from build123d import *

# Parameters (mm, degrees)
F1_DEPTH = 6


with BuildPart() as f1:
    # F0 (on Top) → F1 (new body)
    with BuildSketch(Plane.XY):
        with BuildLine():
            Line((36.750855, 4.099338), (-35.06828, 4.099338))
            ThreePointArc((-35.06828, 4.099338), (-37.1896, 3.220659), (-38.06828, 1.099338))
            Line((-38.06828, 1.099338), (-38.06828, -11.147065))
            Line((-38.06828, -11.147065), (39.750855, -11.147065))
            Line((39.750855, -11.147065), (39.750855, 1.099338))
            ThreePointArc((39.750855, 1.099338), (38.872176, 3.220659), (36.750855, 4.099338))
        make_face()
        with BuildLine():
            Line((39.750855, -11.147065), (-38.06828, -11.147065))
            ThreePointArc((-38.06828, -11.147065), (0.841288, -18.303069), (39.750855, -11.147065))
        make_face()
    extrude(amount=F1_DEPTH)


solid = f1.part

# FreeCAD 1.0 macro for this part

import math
import FreeCAD as App
import Part
import Sketcher
Q = App.Units.Quantity

doc = App.newDocument("Part")
body = doc.addObject("PartDesign::Body", "Body")

# Sketch on XY plane
sketch1 = doc.addObject("Sketcher::SketchObject", "Sketch")
body.addObject(sketch1)
sketch1.AttachmentSupport = (doc.XY_Plane, [""])
sketch1.MapMode = "FlatFace"
sketch1.addGeometry([
    Part.LineSegment(App.Vector(36.750855, 4.099338, 0), App.Vector(-35.06828, 4.099338, 0)),  # 0
    Part.ArcOfCircle(Part.Circle(App.Vector(-35.068281, 1.099339, 0), App.Vector(0, 0, 1), 2.999999), math.radians(89.99999), math.radians(180.00001)),  # 1
    Part.LineSegment(App.Vector(-38.06828, 1.099338, 0), App.Vector(-38.06828, -11.147065, 0)),  # 2
    Part.ArcOfCircle(Part.Circle(App.Vector(0.841287, 91.057046, 0), App.Vector(0, 0, 1), 109.360115), math.radians(-110.842056), math.radians(-69.157944)),  # 3
    Part.LineSegment(App.Vector(39.750855, -11.147065, 0), App.Vector(39.750855, 1.099338, 0)),  # 4
    Part.ArcOfCircle(Part.Circle(App.Vector(36.750857, 1.09934, 0), App.Vector(0, 0, 1), 2.999998), math.radians(-0.000043), math.radians(90.000043)),  # 5
], False)
sketch1.addConstraint([
    Sketcher.Constraint("Tangent", 0, 2, 1, 1),
    Sketcher.Constraint("Tangent", 1, 2, 2, 1),
    Sketcher.Constraint("Coincident", 2, 2, 3, 1),
    Sketcher.Constraint("Coincident", 3, 2, 4, 1),
    Sketcher.Constraint("Tangent", 4, 2, 5, 1),
    Sketcher.Constraint("Tangent", 5, 2, 0, 1),
    Sketcher.Constraint("Horizontal", 0),
    Sketcher.Constraint("Vertical", 2),
    Sketcher.Constraint("Vertical", 4),
    Sketcher.Constraint("Equal", 1, 5),
    Sketcher.Constraint("Horizontal", 2, 2, 3, 2),
    Sketcher.Constraint("Radius", 1, Q("2.999999 mm")),
    Sketcher.Constraint("Radius", 3, Q("109.360115 mm")),
    Sketcher.Constraint("DistanceX", 0, 2, 0, 1, Q("71.819135 mm")),
    Sketcher.Constraint("DistanceY", 2, 2, 2, 1, Q("12.246403 mm")),
    Sketcher.Constraint("DistanceX", 1, 3, -1, 1, Q("35.068281 mm")),
    Sketcher.Constraint("DistanceY", -1, 1, 1, 3, Q("1.099339 mm")),
])
pad1 = doc.addObject("PartDesign::Pad", "Pad")
body.addObject(pad1)
pad1.Profile = sketch1
pad1.Length = 6

doc.recompute()
